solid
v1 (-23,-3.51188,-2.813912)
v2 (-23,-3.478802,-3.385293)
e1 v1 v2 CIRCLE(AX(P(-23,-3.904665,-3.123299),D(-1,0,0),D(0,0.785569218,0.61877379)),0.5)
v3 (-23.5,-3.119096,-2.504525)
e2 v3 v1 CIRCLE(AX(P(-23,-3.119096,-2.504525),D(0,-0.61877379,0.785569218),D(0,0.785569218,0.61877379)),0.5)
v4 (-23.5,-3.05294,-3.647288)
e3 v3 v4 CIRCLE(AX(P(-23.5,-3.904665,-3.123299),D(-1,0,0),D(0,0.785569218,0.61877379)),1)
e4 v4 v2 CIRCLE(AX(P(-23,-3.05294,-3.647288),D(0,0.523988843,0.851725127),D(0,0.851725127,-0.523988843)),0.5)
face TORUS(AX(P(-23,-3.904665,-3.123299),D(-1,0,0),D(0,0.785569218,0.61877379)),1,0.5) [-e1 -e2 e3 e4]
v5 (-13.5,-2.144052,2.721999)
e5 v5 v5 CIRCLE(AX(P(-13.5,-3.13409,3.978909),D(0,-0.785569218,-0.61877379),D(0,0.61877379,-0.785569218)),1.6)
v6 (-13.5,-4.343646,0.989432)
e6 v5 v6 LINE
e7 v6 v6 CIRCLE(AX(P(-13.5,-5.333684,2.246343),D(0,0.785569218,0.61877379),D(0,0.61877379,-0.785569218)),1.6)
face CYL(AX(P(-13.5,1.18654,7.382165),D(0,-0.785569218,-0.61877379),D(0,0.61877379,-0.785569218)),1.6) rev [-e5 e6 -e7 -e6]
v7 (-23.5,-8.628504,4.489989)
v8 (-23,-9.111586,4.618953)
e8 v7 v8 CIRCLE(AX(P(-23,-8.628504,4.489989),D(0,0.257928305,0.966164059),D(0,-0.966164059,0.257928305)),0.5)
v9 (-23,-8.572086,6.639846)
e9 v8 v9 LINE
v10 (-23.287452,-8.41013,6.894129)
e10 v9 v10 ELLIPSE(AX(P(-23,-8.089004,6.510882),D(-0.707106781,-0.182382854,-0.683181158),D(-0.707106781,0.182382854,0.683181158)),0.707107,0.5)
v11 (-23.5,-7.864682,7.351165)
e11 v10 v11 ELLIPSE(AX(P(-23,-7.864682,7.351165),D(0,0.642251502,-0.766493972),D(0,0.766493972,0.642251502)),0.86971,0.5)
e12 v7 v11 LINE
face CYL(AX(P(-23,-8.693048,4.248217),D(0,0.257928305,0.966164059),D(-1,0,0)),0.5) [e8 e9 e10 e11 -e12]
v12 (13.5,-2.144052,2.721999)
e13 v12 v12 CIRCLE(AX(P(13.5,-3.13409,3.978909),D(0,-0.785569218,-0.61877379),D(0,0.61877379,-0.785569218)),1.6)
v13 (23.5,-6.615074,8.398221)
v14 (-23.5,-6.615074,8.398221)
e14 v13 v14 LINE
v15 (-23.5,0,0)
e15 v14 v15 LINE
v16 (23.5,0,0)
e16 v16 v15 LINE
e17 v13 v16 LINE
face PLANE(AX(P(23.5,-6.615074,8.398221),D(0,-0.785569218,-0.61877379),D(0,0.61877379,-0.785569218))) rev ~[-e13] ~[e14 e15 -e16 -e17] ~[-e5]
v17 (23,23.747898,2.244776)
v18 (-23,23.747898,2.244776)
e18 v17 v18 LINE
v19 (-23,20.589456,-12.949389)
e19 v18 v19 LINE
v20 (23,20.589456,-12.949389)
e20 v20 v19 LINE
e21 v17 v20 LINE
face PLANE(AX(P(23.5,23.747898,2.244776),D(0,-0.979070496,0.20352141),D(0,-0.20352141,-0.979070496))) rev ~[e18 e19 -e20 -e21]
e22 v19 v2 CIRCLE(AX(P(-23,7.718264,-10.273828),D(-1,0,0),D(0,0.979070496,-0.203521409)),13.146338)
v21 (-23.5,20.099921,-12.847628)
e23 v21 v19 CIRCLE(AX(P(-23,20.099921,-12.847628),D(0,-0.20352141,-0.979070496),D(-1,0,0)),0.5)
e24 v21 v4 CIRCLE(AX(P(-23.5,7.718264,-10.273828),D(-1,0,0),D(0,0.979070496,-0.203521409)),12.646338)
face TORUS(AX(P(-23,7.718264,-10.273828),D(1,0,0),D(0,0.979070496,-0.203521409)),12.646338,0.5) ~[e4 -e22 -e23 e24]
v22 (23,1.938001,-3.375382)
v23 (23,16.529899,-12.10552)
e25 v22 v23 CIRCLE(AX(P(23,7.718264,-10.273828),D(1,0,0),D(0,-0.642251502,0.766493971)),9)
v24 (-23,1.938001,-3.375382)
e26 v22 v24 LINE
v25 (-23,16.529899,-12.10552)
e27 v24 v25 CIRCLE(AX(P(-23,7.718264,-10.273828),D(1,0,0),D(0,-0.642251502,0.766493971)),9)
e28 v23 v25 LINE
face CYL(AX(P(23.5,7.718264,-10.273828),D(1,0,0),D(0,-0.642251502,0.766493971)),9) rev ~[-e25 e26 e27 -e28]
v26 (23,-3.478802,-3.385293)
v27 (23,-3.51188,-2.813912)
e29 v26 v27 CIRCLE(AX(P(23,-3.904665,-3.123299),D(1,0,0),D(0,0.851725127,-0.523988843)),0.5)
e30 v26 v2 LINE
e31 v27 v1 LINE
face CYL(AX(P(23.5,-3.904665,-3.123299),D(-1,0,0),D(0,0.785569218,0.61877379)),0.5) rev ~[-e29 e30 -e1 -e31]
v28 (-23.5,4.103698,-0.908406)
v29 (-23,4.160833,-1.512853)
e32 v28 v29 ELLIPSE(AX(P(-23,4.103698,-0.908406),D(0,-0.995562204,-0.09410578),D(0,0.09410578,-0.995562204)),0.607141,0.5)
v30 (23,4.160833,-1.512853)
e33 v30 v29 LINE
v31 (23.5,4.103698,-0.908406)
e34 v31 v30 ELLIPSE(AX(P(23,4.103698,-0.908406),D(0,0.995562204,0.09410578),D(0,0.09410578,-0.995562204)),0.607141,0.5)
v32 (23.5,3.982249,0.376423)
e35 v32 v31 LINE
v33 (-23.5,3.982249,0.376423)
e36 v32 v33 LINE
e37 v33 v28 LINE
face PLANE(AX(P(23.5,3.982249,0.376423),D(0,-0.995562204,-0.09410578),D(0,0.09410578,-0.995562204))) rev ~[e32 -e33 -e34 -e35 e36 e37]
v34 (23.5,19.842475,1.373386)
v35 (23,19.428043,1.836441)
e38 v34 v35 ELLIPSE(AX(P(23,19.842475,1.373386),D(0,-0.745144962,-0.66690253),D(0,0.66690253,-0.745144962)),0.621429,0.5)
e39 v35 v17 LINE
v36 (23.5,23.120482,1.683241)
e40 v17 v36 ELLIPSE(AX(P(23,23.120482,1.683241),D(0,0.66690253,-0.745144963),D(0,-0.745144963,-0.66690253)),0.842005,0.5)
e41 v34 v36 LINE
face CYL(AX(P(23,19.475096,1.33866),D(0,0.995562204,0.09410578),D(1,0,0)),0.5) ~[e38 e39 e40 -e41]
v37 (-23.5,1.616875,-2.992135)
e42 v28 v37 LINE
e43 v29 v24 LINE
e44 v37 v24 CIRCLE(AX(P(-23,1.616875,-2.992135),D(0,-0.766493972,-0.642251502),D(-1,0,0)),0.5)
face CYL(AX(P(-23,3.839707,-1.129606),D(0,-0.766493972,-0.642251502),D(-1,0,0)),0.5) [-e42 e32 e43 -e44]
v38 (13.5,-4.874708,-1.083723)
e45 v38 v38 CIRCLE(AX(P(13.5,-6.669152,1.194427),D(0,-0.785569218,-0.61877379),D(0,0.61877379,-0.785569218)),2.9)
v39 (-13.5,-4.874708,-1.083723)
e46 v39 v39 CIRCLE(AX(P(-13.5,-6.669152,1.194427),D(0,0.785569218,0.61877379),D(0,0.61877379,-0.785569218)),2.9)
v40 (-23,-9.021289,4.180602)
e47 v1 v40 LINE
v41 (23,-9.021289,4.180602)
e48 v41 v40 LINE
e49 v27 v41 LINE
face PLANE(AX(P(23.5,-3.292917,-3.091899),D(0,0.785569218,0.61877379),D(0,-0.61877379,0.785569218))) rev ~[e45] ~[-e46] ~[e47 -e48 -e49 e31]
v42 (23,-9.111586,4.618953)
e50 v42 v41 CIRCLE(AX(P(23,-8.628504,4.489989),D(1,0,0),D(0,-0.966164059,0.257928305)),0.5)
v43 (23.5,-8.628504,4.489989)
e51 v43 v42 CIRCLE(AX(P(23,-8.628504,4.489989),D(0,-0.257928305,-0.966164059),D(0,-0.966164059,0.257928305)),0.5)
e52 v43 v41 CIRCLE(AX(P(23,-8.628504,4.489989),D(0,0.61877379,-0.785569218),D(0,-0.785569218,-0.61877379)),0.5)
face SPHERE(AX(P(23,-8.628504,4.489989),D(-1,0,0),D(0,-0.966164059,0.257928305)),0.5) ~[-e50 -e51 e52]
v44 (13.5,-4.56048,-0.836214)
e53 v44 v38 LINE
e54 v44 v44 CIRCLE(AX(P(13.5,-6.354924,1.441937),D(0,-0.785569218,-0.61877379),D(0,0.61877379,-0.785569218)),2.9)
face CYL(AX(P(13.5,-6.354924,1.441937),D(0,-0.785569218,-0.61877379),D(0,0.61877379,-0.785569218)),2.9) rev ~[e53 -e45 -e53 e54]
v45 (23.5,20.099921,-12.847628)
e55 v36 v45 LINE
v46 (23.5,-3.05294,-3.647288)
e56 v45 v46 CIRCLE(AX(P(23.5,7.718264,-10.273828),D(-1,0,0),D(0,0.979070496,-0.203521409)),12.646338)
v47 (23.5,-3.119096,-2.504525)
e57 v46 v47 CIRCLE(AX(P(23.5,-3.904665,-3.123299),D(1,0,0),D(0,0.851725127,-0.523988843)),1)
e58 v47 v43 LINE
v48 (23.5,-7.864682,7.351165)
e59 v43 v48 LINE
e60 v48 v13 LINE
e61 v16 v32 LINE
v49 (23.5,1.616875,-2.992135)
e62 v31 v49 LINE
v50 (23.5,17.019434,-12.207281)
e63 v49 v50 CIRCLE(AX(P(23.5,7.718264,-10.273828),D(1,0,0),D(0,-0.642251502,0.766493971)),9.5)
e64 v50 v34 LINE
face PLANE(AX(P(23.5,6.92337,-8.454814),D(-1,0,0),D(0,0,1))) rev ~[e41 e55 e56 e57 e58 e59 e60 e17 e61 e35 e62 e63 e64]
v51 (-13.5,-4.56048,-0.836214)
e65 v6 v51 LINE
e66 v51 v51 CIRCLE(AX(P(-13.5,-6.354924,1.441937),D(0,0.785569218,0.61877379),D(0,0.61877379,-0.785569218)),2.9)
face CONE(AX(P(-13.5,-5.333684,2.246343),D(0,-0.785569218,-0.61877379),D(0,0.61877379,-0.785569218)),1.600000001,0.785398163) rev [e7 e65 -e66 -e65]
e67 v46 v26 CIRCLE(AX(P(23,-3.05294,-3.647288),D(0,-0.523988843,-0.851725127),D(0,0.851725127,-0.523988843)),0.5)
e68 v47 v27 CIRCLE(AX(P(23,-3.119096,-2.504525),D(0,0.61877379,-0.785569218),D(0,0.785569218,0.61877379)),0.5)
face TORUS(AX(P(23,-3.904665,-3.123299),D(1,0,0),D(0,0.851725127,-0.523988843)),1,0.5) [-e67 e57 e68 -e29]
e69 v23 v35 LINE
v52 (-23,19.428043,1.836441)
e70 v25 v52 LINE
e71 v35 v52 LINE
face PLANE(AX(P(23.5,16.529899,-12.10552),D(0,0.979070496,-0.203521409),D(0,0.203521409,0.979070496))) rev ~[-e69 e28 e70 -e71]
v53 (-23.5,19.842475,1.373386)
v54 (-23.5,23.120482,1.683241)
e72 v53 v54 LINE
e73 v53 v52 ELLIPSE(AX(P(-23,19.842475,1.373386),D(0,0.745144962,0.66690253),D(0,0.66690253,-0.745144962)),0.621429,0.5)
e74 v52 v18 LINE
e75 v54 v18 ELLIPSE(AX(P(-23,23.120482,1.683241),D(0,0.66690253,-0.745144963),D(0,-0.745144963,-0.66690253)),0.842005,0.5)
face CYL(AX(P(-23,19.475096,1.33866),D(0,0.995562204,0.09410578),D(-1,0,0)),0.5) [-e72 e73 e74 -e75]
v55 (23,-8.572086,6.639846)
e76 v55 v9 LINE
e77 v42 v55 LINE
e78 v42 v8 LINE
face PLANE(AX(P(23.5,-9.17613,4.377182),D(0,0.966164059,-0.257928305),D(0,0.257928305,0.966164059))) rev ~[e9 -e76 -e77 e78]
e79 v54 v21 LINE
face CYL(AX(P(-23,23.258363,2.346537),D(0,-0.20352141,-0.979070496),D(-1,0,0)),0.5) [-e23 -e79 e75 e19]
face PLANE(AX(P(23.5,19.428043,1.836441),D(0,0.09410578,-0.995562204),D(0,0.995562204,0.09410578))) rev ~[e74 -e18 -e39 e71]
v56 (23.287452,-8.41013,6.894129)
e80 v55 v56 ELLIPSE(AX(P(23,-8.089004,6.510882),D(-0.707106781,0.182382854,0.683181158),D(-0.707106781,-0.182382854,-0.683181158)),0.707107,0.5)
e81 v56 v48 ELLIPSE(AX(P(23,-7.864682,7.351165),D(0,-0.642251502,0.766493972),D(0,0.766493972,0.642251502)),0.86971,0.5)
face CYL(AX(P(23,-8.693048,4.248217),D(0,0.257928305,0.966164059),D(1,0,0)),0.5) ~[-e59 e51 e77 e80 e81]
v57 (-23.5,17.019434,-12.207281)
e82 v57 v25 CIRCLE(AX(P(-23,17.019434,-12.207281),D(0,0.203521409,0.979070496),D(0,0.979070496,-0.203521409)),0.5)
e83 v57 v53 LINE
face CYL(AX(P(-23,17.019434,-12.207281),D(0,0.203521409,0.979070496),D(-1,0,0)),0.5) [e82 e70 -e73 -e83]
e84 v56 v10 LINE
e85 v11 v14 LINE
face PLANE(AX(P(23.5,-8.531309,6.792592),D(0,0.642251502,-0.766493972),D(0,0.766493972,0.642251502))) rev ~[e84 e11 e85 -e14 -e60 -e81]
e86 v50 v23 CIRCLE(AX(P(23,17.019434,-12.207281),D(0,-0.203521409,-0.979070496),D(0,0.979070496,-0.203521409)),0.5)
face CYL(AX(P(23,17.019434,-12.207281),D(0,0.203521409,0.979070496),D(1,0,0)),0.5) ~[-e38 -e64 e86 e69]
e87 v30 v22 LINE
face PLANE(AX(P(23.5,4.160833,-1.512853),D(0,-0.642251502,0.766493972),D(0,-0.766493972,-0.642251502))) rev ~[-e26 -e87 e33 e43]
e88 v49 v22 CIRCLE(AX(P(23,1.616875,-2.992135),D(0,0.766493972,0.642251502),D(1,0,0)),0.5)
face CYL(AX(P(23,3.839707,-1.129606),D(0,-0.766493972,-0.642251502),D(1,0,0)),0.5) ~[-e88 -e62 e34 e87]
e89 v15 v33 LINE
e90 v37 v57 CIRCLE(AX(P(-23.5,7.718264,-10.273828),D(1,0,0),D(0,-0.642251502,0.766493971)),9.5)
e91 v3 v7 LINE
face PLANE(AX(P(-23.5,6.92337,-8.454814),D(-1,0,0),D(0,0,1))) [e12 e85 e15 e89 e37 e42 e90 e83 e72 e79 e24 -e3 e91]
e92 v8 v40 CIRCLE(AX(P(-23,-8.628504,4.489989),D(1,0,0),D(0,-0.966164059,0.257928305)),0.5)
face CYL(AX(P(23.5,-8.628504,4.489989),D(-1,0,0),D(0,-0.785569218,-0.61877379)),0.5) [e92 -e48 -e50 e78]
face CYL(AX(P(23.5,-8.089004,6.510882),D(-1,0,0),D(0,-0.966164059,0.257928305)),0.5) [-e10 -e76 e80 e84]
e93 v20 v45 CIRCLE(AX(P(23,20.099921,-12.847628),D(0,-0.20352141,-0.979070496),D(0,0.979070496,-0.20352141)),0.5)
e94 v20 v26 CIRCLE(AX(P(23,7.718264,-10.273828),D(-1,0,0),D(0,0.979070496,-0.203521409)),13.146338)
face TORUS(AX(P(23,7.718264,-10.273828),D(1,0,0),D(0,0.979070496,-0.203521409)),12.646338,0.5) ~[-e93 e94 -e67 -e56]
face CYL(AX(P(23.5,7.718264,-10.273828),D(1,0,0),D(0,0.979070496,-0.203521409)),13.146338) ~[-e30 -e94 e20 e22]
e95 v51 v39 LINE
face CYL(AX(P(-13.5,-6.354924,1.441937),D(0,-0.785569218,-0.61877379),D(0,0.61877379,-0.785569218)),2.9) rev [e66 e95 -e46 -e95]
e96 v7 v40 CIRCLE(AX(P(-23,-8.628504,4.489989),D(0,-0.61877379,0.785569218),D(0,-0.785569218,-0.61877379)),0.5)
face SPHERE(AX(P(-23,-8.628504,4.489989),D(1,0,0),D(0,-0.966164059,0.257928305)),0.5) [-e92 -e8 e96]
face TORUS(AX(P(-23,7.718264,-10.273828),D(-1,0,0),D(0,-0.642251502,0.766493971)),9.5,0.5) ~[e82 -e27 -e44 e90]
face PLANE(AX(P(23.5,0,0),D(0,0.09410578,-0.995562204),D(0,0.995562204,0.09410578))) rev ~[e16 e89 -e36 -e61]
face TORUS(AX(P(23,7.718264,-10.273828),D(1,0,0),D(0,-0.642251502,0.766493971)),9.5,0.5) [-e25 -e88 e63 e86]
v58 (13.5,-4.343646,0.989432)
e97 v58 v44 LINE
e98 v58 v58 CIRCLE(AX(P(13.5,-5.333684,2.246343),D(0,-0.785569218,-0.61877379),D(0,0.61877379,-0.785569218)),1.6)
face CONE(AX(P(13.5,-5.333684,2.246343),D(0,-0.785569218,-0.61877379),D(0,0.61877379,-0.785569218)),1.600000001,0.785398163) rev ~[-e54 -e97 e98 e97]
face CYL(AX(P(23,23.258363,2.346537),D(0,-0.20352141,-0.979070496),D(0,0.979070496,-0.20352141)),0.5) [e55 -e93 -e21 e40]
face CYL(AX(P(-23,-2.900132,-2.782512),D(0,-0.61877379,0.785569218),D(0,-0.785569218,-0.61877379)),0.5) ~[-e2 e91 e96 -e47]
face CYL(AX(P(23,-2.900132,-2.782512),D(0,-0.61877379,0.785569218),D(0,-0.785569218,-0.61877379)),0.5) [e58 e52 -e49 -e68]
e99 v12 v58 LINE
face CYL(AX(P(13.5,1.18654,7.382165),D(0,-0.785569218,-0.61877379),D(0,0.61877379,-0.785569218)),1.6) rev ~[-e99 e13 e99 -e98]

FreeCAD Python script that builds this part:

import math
import FreeCAD as App
import Part
import Sketcher

V = App.Vector
Q = App.Units.Quantity


def edges_at(feature, points):
    """Names of the edges that pass closest to the given points."""
    edges = feature.Shape.Edges
    near = lambda p: min(range(len(edges)), key=lambda i: edges[i].distToShape(Part.Vertex(*p))[0])
    return sorted({f"Edge{near(p) + 1}" for p in points})


def add_polygon(sketch, points):
    """Adds a closed chain of lines whose ends are joined by coincident constraints."""
    first, n = sketch.GeometryCount, len(points)
    for a, b in zip(points, points[1:] + points[:1]):
        sketch.addGeometry(Part.LineSegment(App.Vector(*a, 0), App.Vector(*b, 0)), False)
    for i in range(n):
        sketch.addConstraint(Sketcher.Constraint("Coincident", first + i, 2, first + (i + 1) % n, 1))

doc = App.newDocument("Part")
body = doc.addObject("PartDesign::Body", "Body")

sketch1 = body.newObject("Sketcher::SketchObject", "Sketch")
sketch1.AttachmentSupport = (doc.getObject("YZ_Plane"), [""])
sketch1.MapMode = "FlatFace"
sketch1.addGeometry([
    Part.LineSegment(V(-3.3, -3.1, 0), V(-9.2, 4.4, 0)),
    Part.LineSegment(V(-9.2, 4.4, 0), V(-8.5, 6.8, 0)),
    Part.LineSegment(V(-8.5, 6.8, 0), V(-6.6, 8.4, 0)),
    Part.LineSegment(V(-6.6, 8.4, 0), V(0, 0, 0)),
    Part.LineSegment(V(0, 0, 0), V(4, 0.4, 0)),
    Part.LineSegment(V(4, 0.4, 0), V(4.2, -1.5, 0)),
    Part.LineSegment(V(4.2, -1.5, 0), V(1.9, -3.4, 0)),
    Part.ArcOfCircle(Part.Circle(V(7.7, -10.3, 0), V(0, 0, 1), 9), math.radians(130), math.radians(348)),
    Part.LineSegment(V(16.5, -12.1, 0), V(19.4, 1.8, 0)),
    Part.LineSegment(V(19.4, 1.8, 0), V(23.7, 2.2, 0)),
    Part.LineSegment(V(23.7, 2.2, 0), V(20.6, -12.9, 0)),
    Part.ArcOfCircle(Part.Circle(V(7.7, -10.3, 0), V(0, 0, 1), 13.1), math.radians(147), math.radians(348)),
], False)
sketch1.addConstraint([
    Sketcher.Constraint("Coincident", 0, 2, 1, 1),
    Sketcher.Constraint("Coincident", 1, 2, 2, 1),
    Sketcher.Constraint("Coincident", 2, 2, 3, 1),
    Sketcher.Constraint("Coincident", 3, 2, 4, 1),
    Sketcher.Constraint("Coincident", 4, 2, 5, 1),
    Sketcher.Constraint("Coincident", 5, 2, 6, 1),
    Sketcher.Constraint("Tangent", 6, 2, 7, 1),
    Sketcher.Constraint("Tangent", 7, 2, 8, 1),
    Sketcher.Constraint("Coincident", 8, 2, 9, 1),
    Sketcher.Constraint("Coincident", 9, 2, 10, 1),
    Sketcher.Constraint("Tangent", 10, 2, 11, 2),
    Sketcher.Constraint("Coincident", 11, 1, 0, 1),
    Sketcher.Constraint("Coincident", 3, 2, -1, 1),
    Sketcher.Constraint("Coincident", 11, 3, 7, 3),
    Sketcher.Constraint("Parallel", 0, 3),
    Sketcher.Constraint("Perpendicular", 4, 5),
    Sketcher.Constraint("Parallel", 2, 6),
    Sketcher.Constraint("Perpendicular", 5, 9),
    Sketcher.Constraint("Parallel", 8, 10),
    Sketcher.Constraint("Equal", 1, 2),
    Sketcher.Constraint("Radius", 7, Q("9 mm")),
    Sketcher.Constraint("Distance", 4, Q("4 mm")),
    Sketcher.Constraint("Distance", 1, Q("2.5 mm")),
    Sketcher.Constraint("Distance", 6, Q("2.9 mm")),
    Sketcher.Constraint("Radius", 11, Q("13.146338 mm")),
    Sketcher.Constraint("DistanceX", -1, 1, 6, 2, Q("1.938001 mm")),
    Sketcher.Constraint("DistanceX", 7, 2, 9, 2, Q("7.218 mm")),
    Sketcher.Constraint("DistanceX", -1, 1, 7, 2, Q("16.529899 mm")),
    Sketcher.Constraint("DistanceY", 11, 1, -1, 1, Q("3.091899 mm")),
    Sketcher.Constraint("Distance", 3, Q("10.690618 mm")),
    Sketcher.Constraint("Distance", 9, Q("4.339112 mm")),
    Sketcher.Constraint("Distance", 10, Q("15.51897 mm")),
    Sketcher.Constraint("DistanceX", 0, 2, -1, 1, Q("9.17613 mm")),
])
pad1 = body.newObject("PartDesign::Pad", "Pad")
pad1.Profile = sketch1
pad1.Type = "TwoLengths"
pad1.Length = 23.5
pad1.Length2 = 23.5
pad1.Reversed = True

sketch2 = body.newObject("Sketcher::SketchObject", "Sketch001")
sketch2.AttachmentSupport = (doc.getObject("YZ_Plane"), [""])
sketch2.MapMode = "FlatFace"
sketch2.AttachmentOffset = App.Placement(V(0, 0, -13.5), App.Rotation())
add_polygon(sketch2, [(1.94, 7.98), (-6.67, 1.19), (-4.87, -1.08), (-4.56, -0.84), (-4.34, 0.99), (2.18, 6.13)])
sketch2.addGeometry(Part.LineSegment(V(-6.67, 1.19, 0), V(1.94, 7.98, 0)), True)
sketch2.addConstraint([
    Sketcher.Constraint("Coincident", 6, 1, 0, 2),
    Sketcher.Constraint("Coincident", 6, 2, 5, 2),
    Sketcher.Constraint("Perpendicular", 0, 1),
    Sketcher.Constraint("Perpendicular", 1, 2),
    Sketcher.Constraint("Parallel", 2, 4),
    Sketcher.Constraint("Distance", 1, Q("2.9 mm")),
    Sketcher.Constraint("Distance", 2, Q("0.4 mm")),
    Sketcher.Constraint("Distance", 4, Q("8.3 mm")),
    Sketcher.Constraint("DistanceX", 0, 2, -1, 1, Q("6.669152 mm")),
    Sketcher.Constraint("DistanceX", 2, 2, -1, 1, Q("4.56048 mm")),
    Sketcher.Constraint("DistanceY", -1, 1, 3, 2, Q("0.989432 mm")),
    Sketcher.Constraint("DistanceX", -1, 1, 4, 2, Q("2.176579 mm")),
    Sketcher.Constraint("DistanceX", -1, 1, 5, 2, Q("1.941769 mm")),
    Sketcher.Constraint("DistanceY", -1, 1, 5, 2, Q("7.97704 mm")),
])
groove = body.newObject("PartDesign::Groove", "Groove")
groove.Profile = sketch2
groove.ReferenceAxis = (sketch2, ["Axis0"])
groove.Angle = 360
doc.recompute()

mirrored = body.newObject("PartDesign::Mirrored", "Mirrored")
mirrored.Originals = [groove]
mirrored.MirrorPlane = (doc.getObject("YZ_Plane"), [""])
body.Tip = mirrored
doc.recompute()

fillet = body.newObject("PartDesign::Fillet", "Fillet")
fillet.Base = (mirrored, edges_at(mirrored, [
    (-23.5, 22.169, -5.352),
    (0, -8.531, 6.793),
    (0, -9.176, 4.377),
    (0, -3.293, -3.092),
    (-23.5, 21.588, 2.041),
    (-23.5, 17.979, -5.135),
    (-23.5, 3.098, -17.997),
    (-23.5, 3.049, -2.444),
    (-23.5, -8.854, 5.585),
    (-23.5, -6.235, 0.643),
    (-23.5, 2.703, -22.426),
    (23.5, 2.703, -22.426),
    (23.5, 22.169, -5.352),
    (23.5, 21.588, 2.041),
    (23.5, 17.979, -5.135),
    (23.5, 3.098, -17.997),
    (23.5, 3.049, -2.444),
    (23.5, -8.854, 5.585),
    (23.5, -6.235, 0.643),
]))
fillet.Radius = 0.5

doc.recompute()
